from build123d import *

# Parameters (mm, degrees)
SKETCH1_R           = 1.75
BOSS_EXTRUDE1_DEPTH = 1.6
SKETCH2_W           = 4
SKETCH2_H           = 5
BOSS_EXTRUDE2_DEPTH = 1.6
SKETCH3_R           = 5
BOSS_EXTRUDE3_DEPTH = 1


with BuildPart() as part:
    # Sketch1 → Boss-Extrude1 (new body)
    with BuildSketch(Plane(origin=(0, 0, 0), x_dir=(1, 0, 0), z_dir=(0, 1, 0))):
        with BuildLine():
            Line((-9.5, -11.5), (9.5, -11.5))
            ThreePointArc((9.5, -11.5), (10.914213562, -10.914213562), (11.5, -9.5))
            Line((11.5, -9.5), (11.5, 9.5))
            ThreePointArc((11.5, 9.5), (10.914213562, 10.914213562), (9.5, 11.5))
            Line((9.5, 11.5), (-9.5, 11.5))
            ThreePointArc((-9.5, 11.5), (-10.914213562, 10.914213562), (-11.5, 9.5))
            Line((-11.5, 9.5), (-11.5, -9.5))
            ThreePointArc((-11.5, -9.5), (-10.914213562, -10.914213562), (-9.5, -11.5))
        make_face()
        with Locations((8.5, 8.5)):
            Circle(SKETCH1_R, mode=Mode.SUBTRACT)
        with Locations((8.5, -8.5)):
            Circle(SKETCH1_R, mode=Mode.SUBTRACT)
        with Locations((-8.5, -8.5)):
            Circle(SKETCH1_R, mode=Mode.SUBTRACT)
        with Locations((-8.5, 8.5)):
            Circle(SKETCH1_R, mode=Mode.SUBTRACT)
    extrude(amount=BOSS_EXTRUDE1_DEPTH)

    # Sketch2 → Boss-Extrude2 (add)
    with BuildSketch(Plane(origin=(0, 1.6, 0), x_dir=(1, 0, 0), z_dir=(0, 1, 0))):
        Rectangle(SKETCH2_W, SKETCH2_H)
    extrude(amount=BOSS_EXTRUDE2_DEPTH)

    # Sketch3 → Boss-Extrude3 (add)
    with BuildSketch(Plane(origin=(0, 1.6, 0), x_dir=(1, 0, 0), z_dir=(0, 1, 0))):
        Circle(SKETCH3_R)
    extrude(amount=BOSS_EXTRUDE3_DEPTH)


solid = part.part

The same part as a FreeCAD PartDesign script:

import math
import FreeCAD as App
import Part
import Sketcher
from FreeCAD import Vector

doc = App.newDocument("Part")
body = doc.addObject("PartDesign::Body", "Body")

sketch1 = body.newObject("Sketcher::SketchObject", "Sketch")
sketch1.AttachmentSupport = (doc.getObject("XZ_Plane"), [""])
sketch1.MapMode = "FlatFace"
sketch1.addGeometry([
    Part.LineSegment(Vector(-9.5, 11.5, 0), Vector(9.5, 11.5, 0)),
    Part.ArcOfCircle(Part.Circle(Vector(9.5, 9.5, 0), Vector(0, 0, 1), 2), math.radians(0), math.radians(90)),
    Part.LineSegment(Vector(11.5, 9.5, 0), Vector(11.5, -9.5, 0)),
    Part.ArcOfCircle(Part.Circle(Vector(9.5, -9.5, 0), Vector(0, 0, 1), 2), math.radians(-90), math.radians(0)),
    Part.LineSegment(Vector(9.5, -11.5, 0), Vector(-9.5, -11.5, 0)),
    Part.ArcOfCircle(Part.Circle(Vector(-9.5, -9.5, 0), Vector(0, 0, 1), 2), math.radians(-180), math.radians(-90)),
    Part.LineSegment(Vector(-11.5, -9.5, 0), Vector(-11.5, 9.5, 0)),
    Part.ArcOfCircle(Part.Circle(Vector(-9.5, 9.5, 0), Vector(0, 0, 1), 2), math.radians(90), math.radians(180)),
    Part.Circle(Vector(-8.5, 8.5, 0), Vector(0, 0, 1), 1.8),
    Part.Circle(Vector(8.5, 8.5, 0), Vector(0, 0, 1), 1.8),
    Part.Circle(Vector(-8.5, -8.5, 0), Vector(0, 0, 1), 1.8),
    Part.Circle(Vector(8.5, -8.5, 0), Vector(0, 0, 1), 1.8),
], False)
sketch1.addConstraint([
    Sketcher.Constraint("Tangent", 0, 2, 1, 2),
    Sketcher.Constraint("Tangent", 1, 1, 2, 1),
    Sketcher.Constraint("Tangent", 2, 2, 3, 2),
    Sketcher.Constraint("Tangent", 3, 1, 4, 1),
    Sketcher.Constraint("Tangent", 4, 2, 5, 2),
    Sketcher.Constraint("Tangent", 5, 1, 6, 1),
    Sketcher.Constraint("Tangent", 6, 2, 7, 2),
    Sketcher.Constraint("Tangent", 7, 1, 0, 1),
    Sketcher.Constraint("Horizontal", 0),
    Sketcher.Constraint("Vertical", 2),
    Sketcher.Constraint("Horizontal", 4),
    Sketcher.Constraint("Vertical", 6),
    Sketcher.Constraint("Equal", 1, 3),
    Sketcher.Constraint("Equal", 3, 5),
    Sketcher.Constraint("Equal", 5, 7),
    Sketcher.Constraint("Equal", 8, 9),
    Sketcher.Constraint("Equal", 9, 10),
    Sketcher.Constraint("Equal", 10, 11),
    Sketcher.Constraint("Symmetric", 1, 3, 5, 3, -1, 1),
    Sketcher.Constraint("Symmetric", 9, 3, 10, 3, -1, 1),
    Sketcher.Constraint("Symmetric", 8, 3, 11, 3, -1, 1),
    Sketcher.Constraint("Symmetric", 8, 3, 9, 3, -2),
    Sketcher.Constraint("Equal", 4, 2),
    Sketcher.Constraint("Radius", 1, 2.0),
    Sketcher.Constraint("Diameter", 8, 3.5),
    Sketcher.Constraint("DistanceX", 0, 1, 0, 2, 19.0),
    Sketcher.Constraint("DistanceX", 7, 3, 8, 3, 1.0),
    Sketcher.Constraint("DistanceY", 8, 3, 7, 3, 1.0),
])
pad1 = body.newObject("PartDesign::Pad", "Pad")
pad1.Profile = sketch1
pad1.Length = 1.6
pad1.Reversed = True

sketch2 = body.newObject("Sketcher::SketchObject", "Sketch001")
sketch2.AttachmentSupport = (doc.getObject("XZ_Plane"), [""])
sketch2.MapMode = "FlatFace"
sketch2.AttachmentOffset = App.Placement(Vector(0, 0, -1.6), App.Rotation())
sketch2.addGeometry([
    Part.LineSegment(Vector(-2, -2.5, 0), Vector(-2, 2.5, 0)),
    Part.LineSegment(Vector(-2, 2.5, 0), Vector(2, 2.5, 0)),
    Part.LineSegment(Vector(2, 2.5, 0), Vector(2, -2.5, 0)),
    Part.LineSegment(Vector(2, -2.5, 0), Vector(-2, -2.5, 0)),
], False)
sketch2.addConstraint([
    Sketcher.Constraint("Coincident", 0, 2, 1, 1),
    Sketcher.Constraint("Coincident", 1, 2, 2, 1),
    Sketcher.Constraint("Coincident", 2, 2, 3, 1),
    Sketcher.Constraint("Coincident", 3, 2, 0, 1),
    Sketcher.Constraint("Vertical", 0),
    Sketcher.Constraint("Horizontal", 1),
    Sketcher.Constraint("Vertical", 2),
    Sketcher.Constraint("Horizontal", 3),
    Sketcher.Constraint("Symmetric", 0, 2, 2, 2, -1, 1),
    Sketcher.Constraint("DistanceX", 1, 1, 1, 2, 4.0),
    Sketcher.Constraint("DistanceY", 0, 1, 0, 2, 5.0),
])
pad2 = body.newObject("PartDesign::Pad", "Pad001")
pad2.Profile = sketch2
pad2.Length = 1.6
pad2.Reversed = True

sketch3 = body.newObject("Sketcher::SketchObject", "Sketch002")
sketch3.AttachmentSupport = (doc.getObject("XZ_Plane"), [""])
sketch3.MapMode = "FlatFace"
sketch3.AttachmentOffset = App.Placement(Vector(0, 0, -1.6), App.Rotation())
sketch3.addGeometry(Part.Circle(Vector(0, 0, 0), Vector(0, 0, 1), 5), False)
sketch3.addConstraint([
    Sketcher.Constraint("Coincident", 0, 3, -1, 1),
    Sketcher.Constraint("Diameter", 0, 10.0),
])
pad3 = body.newObject("PartDesign::Pad", "Pad002")
pad3.Profile = sketch3
pad3.Length = 1
pad3.Reversed = True

doc.recompute()
